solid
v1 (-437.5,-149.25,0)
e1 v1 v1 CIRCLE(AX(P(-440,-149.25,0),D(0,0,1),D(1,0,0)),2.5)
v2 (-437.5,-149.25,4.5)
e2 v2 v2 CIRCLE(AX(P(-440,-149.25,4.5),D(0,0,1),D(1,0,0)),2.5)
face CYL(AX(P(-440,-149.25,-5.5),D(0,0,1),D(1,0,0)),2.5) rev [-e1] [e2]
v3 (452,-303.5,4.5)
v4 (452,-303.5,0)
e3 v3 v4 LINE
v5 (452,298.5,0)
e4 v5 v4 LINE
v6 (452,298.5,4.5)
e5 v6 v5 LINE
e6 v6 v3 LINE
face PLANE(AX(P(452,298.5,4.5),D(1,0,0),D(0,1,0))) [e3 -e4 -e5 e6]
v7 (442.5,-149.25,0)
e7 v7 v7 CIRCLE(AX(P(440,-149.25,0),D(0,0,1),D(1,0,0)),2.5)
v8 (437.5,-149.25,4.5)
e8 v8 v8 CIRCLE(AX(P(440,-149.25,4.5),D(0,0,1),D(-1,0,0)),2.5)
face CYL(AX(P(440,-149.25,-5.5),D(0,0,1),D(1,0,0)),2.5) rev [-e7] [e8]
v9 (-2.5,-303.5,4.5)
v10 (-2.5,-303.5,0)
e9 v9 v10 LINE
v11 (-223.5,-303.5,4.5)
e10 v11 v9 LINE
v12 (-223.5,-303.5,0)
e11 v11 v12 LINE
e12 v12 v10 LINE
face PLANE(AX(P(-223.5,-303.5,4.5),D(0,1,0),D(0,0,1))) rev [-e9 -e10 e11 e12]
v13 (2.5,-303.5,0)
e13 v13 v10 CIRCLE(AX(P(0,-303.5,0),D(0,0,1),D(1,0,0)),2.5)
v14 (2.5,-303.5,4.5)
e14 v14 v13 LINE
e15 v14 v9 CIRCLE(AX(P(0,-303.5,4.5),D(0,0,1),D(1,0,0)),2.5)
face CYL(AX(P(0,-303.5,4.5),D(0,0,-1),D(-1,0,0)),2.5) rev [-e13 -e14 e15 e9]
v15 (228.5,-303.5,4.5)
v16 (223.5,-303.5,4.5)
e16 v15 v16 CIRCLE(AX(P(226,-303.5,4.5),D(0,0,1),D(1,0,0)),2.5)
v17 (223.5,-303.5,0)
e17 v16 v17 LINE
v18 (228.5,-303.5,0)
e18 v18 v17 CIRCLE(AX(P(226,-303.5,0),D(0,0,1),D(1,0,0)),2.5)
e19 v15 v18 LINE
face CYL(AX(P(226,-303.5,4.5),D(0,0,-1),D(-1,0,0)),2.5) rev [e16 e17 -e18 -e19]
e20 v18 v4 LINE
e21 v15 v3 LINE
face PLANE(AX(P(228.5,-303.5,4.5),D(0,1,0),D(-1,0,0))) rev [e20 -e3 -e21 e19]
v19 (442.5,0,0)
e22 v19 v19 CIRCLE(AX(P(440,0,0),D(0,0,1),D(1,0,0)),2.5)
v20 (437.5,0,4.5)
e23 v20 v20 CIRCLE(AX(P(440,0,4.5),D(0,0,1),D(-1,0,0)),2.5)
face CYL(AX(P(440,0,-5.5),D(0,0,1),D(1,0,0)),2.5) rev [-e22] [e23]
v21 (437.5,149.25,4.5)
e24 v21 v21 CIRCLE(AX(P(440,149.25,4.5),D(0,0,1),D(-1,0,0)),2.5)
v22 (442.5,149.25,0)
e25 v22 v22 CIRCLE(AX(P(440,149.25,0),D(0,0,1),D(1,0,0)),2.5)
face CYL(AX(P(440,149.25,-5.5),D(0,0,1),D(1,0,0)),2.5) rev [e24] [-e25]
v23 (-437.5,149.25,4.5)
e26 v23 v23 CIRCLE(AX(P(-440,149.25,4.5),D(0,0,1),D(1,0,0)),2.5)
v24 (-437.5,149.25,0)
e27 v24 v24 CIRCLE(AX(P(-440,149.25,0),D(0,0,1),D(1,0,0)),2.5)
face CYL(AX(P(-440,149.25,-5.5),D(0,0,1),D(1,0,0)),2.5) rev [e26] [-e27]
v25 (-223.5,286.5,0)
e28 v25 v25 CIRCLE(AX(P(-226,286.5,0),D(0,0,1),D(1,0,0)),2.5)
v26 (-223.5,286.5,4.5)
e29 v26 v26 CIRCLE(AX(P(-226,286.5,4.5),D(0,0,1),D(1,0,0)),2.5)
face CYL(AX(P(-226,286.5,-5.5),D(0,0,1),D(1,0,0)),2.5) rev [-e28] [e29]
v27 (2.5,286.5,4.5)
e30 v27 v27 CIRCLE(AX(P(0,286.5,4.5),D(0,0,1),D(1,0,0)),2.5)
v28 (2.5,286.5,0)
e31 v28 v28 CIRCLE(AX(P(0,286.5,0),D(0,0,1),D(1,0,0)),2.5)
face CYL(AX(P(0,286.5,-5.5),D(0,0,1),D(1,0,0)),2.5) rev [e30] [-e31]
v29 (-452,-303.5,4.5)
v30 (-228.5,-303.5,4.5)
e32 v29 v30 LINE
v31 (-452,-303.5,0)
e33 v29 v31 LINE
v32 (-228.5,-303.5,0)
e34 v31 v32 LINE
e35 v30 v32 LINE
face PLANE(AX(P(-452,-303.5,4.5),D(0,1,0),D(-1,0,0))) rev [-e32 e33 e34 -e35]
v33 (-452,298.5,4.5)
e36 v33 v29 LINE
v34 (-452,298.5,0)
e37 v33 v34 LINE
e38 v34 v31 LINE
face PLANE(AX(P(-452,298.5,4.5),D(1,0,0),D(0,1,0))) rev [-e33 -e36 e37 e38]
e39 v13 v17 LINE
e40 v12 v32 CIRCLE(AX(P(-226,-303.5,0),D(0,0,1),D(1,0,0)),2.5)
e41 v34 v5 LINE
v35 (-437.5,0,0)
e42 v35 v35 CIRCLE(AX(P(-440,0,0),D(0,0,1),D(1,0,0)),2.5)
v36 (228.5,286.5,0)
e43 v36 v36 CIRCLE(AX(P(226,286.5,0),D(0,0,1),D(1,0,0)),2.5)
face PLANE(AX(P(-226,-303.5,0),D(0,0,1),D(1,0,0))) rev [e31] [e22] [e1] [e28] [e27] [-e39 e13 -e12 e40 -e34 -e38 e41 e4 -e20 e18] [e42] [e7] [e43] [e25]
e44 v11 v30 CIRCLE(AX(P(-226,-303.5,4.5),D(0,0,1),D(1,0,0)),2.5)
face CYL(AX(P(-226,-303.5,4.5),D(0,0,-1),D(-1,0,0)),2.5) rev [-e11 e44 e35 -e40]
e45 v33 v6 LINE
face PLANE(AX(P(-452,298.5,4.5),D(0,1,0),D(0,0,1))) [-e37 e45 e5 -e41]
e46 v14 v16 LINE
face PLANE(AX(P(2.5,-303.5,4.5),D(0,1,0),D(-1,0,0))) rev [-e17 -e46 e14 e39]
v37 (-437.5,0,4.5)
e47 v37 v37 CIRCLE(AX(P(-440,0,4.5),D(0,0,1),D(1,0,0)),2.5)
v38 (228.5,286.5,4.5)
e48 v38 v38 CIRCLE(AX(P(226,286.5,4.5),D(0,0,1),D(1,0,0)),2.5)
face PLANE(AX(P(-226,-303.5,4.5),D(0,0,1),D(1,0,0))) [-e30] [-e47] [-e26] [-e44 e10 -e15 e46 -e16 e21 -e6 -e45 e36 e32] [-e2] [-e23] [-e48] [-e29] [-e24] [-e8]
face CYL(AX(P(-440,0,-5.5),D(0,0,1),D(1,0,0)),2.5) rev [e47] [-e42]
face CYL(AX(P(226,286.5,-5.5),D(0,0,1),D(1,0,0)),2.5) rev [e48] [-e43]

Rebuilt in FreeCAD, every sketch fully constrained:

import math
import FreeCAD as App
import Part
import Sketcher

V = App.Vector
Q = App.Units.Quantity

doc = App.newDocument("Part")
params = doc.addObject("Spreadsheet::Sheet", "Params")
for row, (alias, value) in enumerate([
    ("sketch1_radius", "2.5 mm"),
    ("sketch1_width", "904 mm"),
    ("sketch1_width2", "221 mm"),
    ("sketch1_height", "602 mm"),
    ("pad1_length", "4.5 mm"),
    ("sketch2_diameter", "5 mm"),
    ("pocket1_length", "10 mm"),
], start=1):
    params.set(f"A{row}", alias)
    params.set(f"B{row}", "=" + value)
    params.setAlias(f"B{row}", alias)

body = doc.addObject("PartDesign::Body", "Body")

# Sketch on XY plane
sketch1 = body.newObject("Sketcher::SketchObject", "Sketch")
sketch1.AttachmentSupport = (doc.getObject("XY_Plane"), [""])
sketch1.MapMode = "FlatFace"
sketch1.addGeometry(Part.LineSegment(V(452, 298.5, 0), V(-452, 298.5, 0)), False)
sketch1.addGeometry(Part.LineSegment(V(-452, 298.5, 0), V(-452, -303.5, 0)), False)
sketch1.addGeometry(Part.LineSegment(V(-452, -303.5, 0), V(-228.5, -303.5, 0)), False)
sketch1.addGeometry(Part.ArcOfCircle(Part.Circle(V(-226, -303.5, 0), V(0, 0, 1), 2.5), math.radians(0), math.radians(180)), False)
sketch1.addGeometry(Part.LineSegment(V(-223.5, -303.5, 0), V(-2.5, -303.5, 0)), False)
sketch1.addGeometry(Part.ArcOfCircle(Part.Circle(V(0, -303.5, 0), V(0, 0, 1), 2.5), math.radians(0), math.radians(180)), False)
sketch1.addGeometry(Part.LineSegment(V(2.5, -303.5, 0), V(223.5, -303.5, 0)), False)
sketch1.addGeometry(Part.ArcOfCircle(Part.Circle(V(226, -303.5, 0), V(0, 0, 1), 2.5), math.radians(0), math.radians(180)), False)
sketch1.addGeometry(Part.LineSegment(V(228.5, -303.5, 0), V(452, -303.5, 0)), False)
sketch1.addGeometry(Part.LineSegment(V(452, -303.5, 0), V(452, 298.5, 0)), False)
sketch1.addConstraint(Sketcher.Constraint("Coincident", 0, 2, 1, 1))
sketch1.addConstraint(Sketcher.Constraint("Coincident", 1, 2, 2, 1))
sketch1.addConstraint(Sketcher.Constraint("Coincident", 2, 2, 3, 2))
sketch1.addConstraint(Sketcher.Constraint("Coincident", 3, 1, 4, 1))
sketch1.addConstraint(Sketcher.Constraint("Coincident", 4, 2, 5, 2))
sketch1.addConstraint(Sketcher.Constraint("Coincident", 5, 1, 6, 1))
sketch1.addConstraint(Sketcher.Constraint("Coincident", 6, 2, 7, 2))
sketch1.addConstraint(Sketcher.Constraint("Coincident", 7, 1, 8, 1))
sketch1.addConstraint(Sketcher.Constraint("Coincident", 8, 2, 9, 1))
sketch1.addConstraint(Sketcher.Constraint("Coincident", 9, 2, 0, 1))
sketch1.addConstraint(Sketcher.Constraint("Horizontal", 0))
sketch1.addConstraint(Sketcher.Constraint("Vertical", 1))
sketch1.addConstraint(Sketcher.Constraint("Horizontal", 2))
sketch1.addConstraint(Sketcher.Constraint("Horizontal", 4))
sketch1.addConstraint(Sketcher.Constraint("Horizontal", 6))
sketch1.addConstraint(Sketcher.Constraint("Horizontal", 8))
sketch1.addConstraint(Sketcher.Constraint("Vertical", 9))
sketch1.addConstraint(Sketcher.Constraint("Equal", 3, 5))
sketch1.addConstraint(Sketcher.Constraint("Equal", 5, 7))
sketch1.addConstraint(Sketcher.Constraint("Symmetric", 3, 3, 7, 3, -2))
sketch1.addConstraint(Sketcher.Constraint("Symmetric", 4, 2, 5, 1, -2))
sketch1.addConstraint(Sketcher.Constraint("Symmetric", 1, 2, 8, 2, -2))
sketch1.addConstraint(Sketcher.Constraint("Horizontal", 3, 3, 5, 3))
sketch1.addConstraint(Sketcher.Constraint("Horizontal", 7, 3, 1, 2))
sketch1.addConstraint(Sketcher.Constraint("Horizontal", 2, 2, 3, 1))
sketch1.addConstraint(Sketcher.Constraint("Radius", 3, Q("2.5 mm")))
sketch1.addConstraint(Sketcher.Constraint("DistanceX", 0, 2, 0, 1, Q("904 mm")))
sketch1.addConstraint(Sketcher.Constraint("DistanceX", 4, 1, 4, 2, Q("221 mm")))
sketch1.addConstraint(Sketcher.Constraint("DistanceY", 1, 2, 1, 1, Q("602 mm")))
sketch1.addConstraint(Sketcher.Constraint("DistanceY", 3, 3, -1, 1, Q("303.5 mm")))
sketch1.setExpression("Constraints[25]", "Params.sketch1_radius")
sketch1.setExpression("Constraints[26]", "Params.sketch1_width")
sketch1.setExpression("Constraints[27]", "Params.sketch1_width2")
sketch1.setExpression("Constraints[28]", "Params.sketch1_height")
pad1 = body.newObject("PartDesign::Pad", "Pad")
pad1.Profile = sketch1
pad1.setExpression("Length", "Params.pad1_length")

# Sketch on XY plane
sketch2 = body.newObject("Sketcher::SketchObject", "Sketch001")
sketch2.AttachmentSupport = (doc.getObject("XY_Plane"), [""])
sketch2.MapMode = "FlatFace"
sketch2.AttachmentOffset = App.Placement(V(0, 0, 4.5), App.Rotation())
sketch2.addGeometry(Part.Circle(V(0, 286.5, 0), V(0, 0, 1), 2.5), False)
sketch2.addGeometry(Part.Circle(V(440, -149.25, 0), V(0, 0, 1), 2.5), False)
sketch2.addGeometry(Part.Circle(V(440, 0, 0), V(0, 0, 1), 2.5), False)
sketch2.addGeometry(Part.Circle(V(440, 149.25, 0), V(0, 0, 1), 2.5), False)
sketch2.addGeometry(Part.Circle(V(-440, -149.25, 0), V(0, 0, 1), 2.5), False)
sketch2.addGeometry(Part.Circle(V(-440, 0, 0), V(0, 0, 1), 2.5), False)
sketch2.addGeometry(Part.Circle(V(-440, 149.25, 0), V(0, 0, 1), 2.5), False)
sketch2.addGeometry(Part.Circle(V(226, 286.5, 0), V(0, 0, 1), 2.5), False)
sketch2.addGeometry(Part.Circle(V(-226, 286.5, 0), V(0, 0, 1), 2.5), False)
sketch2.addConstraint(Sketcher.Constraint("Equal", 0, 1))
sketch2.addConstraint(Sketcher.Constraint("Equal", 1, 2))
sketch2.addConstraint(Sketcher.Constraint("Equal", 2, 3))
sketch2.addConstraint(Sketcher.Constraint("Equal", 3, 4))
sketch2.addConstraint(Sketcher.Constraint("Equal", 4, 5))
sketch2.addConstraint(Sketcher.Constraint("Equal", 5, 6))
sketch2.addConstraint(Sketcher.Constraint("Equal", 6, 7))
sketch2.addConstraint(Sketcher.Constraint("Equal", 7, 8))
sketch2.addConstraint(Sketcher.Constraint("Symmetric", 3, 3, 4, 3, -1, 1))
sketch2.addConstraint(Sketcher.Constraint("Symmetric", 2, 3, 5, 3, -1, 1))
sketch2.addConstraint(Sketcher.Constraint("Symmetric", 1, 3, 6, 3, -1, 1))
sketch2.addConstraint(Sketcher.Constraint("Symmetric", 1, 3, 4, 3, -2))
sketch2.addConstraint(Sketcher.Constraint("Symmetric", 7, 3, 8, 3, -2))
sketch2.addConstraint(Sketcher.Constraint("PointOnObject", 0, 3, -2))
sketch2.addConstraint(Sketcher.Constraint("PointOnObject", 2, 3, -1))
sketch2.addConstraint(Sketcher.Constraint("Horizontal", 0, 3, 7, 3))
sketch2.addConstraint(Sketcher.Constraint("Vertical", 1, 3, 2, 3))
sketch2.addConstraint(Sketcher.Constraint("Diameter", 0, Q("5 mm")))
sketch2.addConstraint(Sketcher.Constraint("DistanceX", -1, 1, 1, 3, Q("440 mm")))
sketch2.addConstraint(Sketcher.Constraint("DistanceX", -1, 1, 7, 3, Q("226 mm")))
sketch2.addConstraint(Sketcher.Constraint("DistanceY", -1, 1, 0, 3, Q("286.5 mm")))
sketch2.addConstraint(Sketcher.Constraint("DistanceY", 1, 3, 3, 3, Q("298.5 mm")))
sketch2.setExpression("Constraints[17]", "Params.sketch2_diameter")
pocket1 = body.newObject("PartDesign::Pocket", "Pocket")
pocket1.Profile = sketch2
pocket1.setExpression("Length", "Params.pocket1_length")

doc.recompute()
